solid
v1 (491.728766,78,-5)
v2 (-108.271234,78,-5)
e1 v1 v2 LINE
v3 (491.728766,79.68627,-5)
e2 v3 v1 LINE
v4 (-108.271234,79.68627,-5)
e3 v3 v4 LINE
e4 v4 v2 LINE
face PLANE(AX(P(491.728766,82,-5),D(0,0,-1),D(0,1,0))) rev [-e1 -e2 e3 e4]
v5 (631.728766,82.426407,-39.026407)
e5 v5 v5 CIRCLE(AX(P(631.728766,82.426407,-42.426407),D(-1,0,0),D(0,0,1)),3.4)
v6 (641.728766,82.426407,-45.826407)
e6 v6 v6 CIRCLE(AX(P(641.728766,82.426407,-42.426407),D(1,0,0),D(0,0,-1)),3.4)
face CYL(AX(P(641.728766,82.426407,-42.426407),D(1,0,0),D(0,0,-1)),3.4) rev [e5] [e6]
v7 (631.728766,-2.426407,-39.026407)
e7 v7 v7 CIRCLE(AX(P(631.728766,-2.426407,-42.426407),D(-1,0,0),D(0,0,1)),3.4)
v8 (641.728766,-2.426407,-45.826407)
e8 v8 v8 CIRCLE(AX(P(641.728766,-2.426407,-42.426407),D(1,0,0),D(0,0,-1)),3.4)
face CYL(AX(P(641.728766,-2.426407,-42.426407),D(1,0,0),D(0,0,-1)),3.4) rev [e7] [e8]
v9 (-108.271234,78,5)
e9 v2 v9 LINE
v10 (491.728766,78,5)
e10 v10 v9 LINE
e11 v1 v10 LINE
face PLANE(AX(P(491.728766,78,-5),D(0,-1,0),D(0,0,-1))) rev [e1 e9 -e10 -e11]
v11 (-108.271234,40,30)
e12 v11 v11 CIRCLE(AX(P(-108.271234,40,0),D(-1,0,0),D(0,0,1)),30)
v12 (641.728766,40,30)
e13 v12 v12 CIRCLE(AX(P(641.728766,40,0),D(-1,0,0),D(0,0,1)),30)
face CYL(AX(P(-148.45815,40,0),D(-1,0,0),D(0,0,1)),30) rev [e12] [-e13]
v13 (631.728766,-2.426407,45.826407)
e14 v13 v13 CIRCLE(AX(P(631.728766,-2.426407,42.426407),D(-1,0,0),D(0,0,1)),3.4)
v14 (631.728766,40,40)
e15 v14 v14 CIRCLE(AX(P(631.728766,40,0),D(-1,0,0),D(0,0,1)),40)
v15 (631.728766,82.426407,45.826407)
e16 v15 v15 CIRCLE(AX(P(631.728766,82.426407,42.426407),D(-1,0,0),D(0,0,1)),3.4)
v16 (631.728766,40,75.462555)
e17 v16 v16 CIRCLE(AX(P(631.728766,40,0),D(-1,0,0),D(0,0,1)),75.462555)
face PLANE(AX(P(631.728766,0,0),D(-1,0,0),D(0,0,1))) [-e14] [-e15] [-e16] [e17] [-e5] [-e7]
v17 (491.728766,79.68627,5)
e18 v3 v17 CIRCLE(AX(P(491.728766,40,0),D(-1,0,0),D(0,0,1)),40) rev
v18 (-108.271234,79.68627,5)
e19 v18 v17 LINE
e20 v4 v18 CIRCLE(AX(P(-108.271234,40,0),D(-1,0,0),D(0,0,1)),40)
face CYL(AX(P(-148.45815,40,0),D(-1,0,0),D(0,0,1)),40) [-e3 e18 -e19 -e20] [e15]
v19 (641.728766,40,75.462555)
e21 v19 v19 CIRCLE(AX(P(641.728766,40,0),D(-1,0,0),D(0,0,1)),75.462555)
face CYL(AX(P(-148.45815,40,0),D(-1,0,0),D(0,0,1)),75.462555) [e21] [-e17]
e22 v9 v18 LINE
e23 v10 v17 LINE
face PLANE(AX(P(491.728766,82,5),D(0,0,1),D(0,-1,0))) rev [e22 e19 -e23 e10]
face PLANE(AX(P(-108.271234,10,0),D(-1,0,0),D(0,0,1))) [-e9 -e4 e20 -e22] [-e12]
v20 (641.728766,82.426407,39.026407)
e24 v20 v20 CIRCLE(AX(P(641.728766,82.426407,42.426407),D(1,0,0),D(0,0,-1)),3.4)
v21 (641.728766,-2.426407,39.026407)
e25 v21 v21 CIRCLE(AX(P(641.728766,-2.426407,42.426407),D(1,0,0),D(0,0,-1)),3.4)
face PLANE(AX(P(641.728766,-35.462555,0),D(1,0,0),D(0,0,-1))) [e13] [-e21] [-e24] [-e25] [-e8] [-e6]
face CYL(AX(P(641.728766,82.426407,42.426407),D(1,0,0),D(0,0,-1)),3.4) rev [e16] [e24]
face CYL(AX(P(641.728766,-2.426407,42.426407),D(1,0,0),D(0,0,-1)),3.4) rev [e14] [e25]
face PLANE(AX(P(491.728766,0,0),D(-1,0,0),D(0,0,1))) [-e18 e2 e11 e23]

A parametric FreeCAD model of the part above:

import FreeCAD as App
import Part
import Sketcher

doc = App.newDocument("Part")
params = doc.addObject("Spreadsheet::Sheet", "Params")
for row, (alias, value) in enumerate([
    ("sketch1_width", "740 mm"),
    ("sketch1_width2", "10 mm"),
    ("revolution_angle", "360 deg"),
    ("sketch2_width", "4 mm"),
    ("sketch2_height", "10 mm"),
    ("pocket1_length", "600 mm"),
    ("sketch3_diameter", "6.8 mm"),
    ("hole_diameter", "6.8 mm"),
    ("hole_depth", "19.75 mm"),
], start=1):
    params.set(f"A{row}", alias)
    params.set(f"B{row}", "=" + value)
    params.setAlias(f"B{row}", alias)

body = doc.addObject("PartDesign::Body", "Body")

sketch1 = body.newObject("Sketcher::SketchObject", "Sketch")
sketch1.AttachmentSupport = (doc.getObject("XY_Plane"), [""])
sketch1.MapMode = "FlatFace"
sketch1.addGeometry(Part.LineSegment(App.Vector(-108, 10, 0), App.Vector(-108, 0, 0)), False)
sketch1.addGeometry(Part.LineSegment(App.Vector(-108, 0, 0), App.Vector(632, 0, 0)), False)
sketch1.addGeometry(Part.LineSegment(App.Vector(632, 0, 0), App.Vector(632, -35, 0)), False)
sketch1.addGeometry(Part.LineSegment(App.Vector(632, -35, 0), App.Vector(642, -35, 0)), False)
sketch1.addGeometry(Part.LineSegment(App.Vector(642, -35, 0), App.Vector(642, 10, 0)), False)
sketch1.addGeometry(Part.LineSegment(App.Vector(642, 10, 0), App.Vector(-108, 10, 0)), False)
sketch1.addGeometry(Part.LineSegment(App.Vector(-108, 40, 0), App.Vector(642, 40, 0)), True)
sketch1.addConstraint(Sketcher.Constraint("Coincident", 0, 2, 1, 1))
sketch1.addConstraint(Sketcher.Constraint("Coincident", 1, 2, 2, 1))
sketch1.addConstraint(Sketcher.Constraint("Coincident", 2, 2, 3, 1))
sketch1.addConstraint(Sketcher.Constraint("Coincident", 3, 2, 4, 1))
sketch1.addConstraint(Sketcher.Constraint("Coincident", 4, 2, 5, 1))
sketch1.addConstraint(Sketcher.Constraint("Coincident", 5, 2, 0, 1))
sketch1.addConstraint(Sketcher.Constraint("Vertical", 0))
sketch1.addConstraint(Sketcher.Constraint("Horizontal", 1))
sketch1.addConstraint(Sketcher.Constraint("Vertical", 2))
sketch1.addConstraint(Sketcher.Constraint("Horizontal", 3))
sketch1.addConstraint(Sketcher.Constraint("Vertical", 4))
sketch1.addConstraint(Sketcher.Constraint("Horizontal", 5))
sketch1.addConstraint(Sketcher.Constraint("Horizontal", 6))
sketch1.addConstraint(Sketcher.Constraint("PointOnObject", 0, 2, -1))
sketch1.addConstraint(Sketcher.Constraint("Vertical", 5, 2, 6, 1))
sketch1.addConstraint(Sketcher.Constraint("Vertical", 4, 2, 6, 2))
sketch1.addConstraint(Sketcher.Constraint("Equal", 3, 0))
sketch1.addConstraint(Sketcher.Constraint("DistanceX", 1, 1, 1, 2, 740.0))
sketch1.addConstraint(Sketcher.Constraint("DistanceX", 3, 1, 3, 2, 10.0))
sketch1.addConstraint(Sketcher.Constraint("DistanceY", -1, 1, 6, 1, 40.0))
sketch1.addConstraint(Sketcher.Constraint("DistanceY", 2, 2, 2, 1, 35.462555))
sketch1.addConstraint(Sketcher.Constraint("DistanceX", 0, 2, -1, 1, 108.271234))
sketch1.setExpression("Constraints[17]", "Params.sketch1_width")
sketch1.setExpression("Constraints[18]", "Params.sketch1_width2")
revolution = body.newObject("PartDesign::Revolution", "Revolution")
revolution.Profile = sketch1
revolution.ReferenceAxis = (sketch1, ["Axis0"])
revolution.setExpression("Angle", "Params.revolution_angle")

sketch2 = body.newObject("Sketcher::SketchObject", "Sketch001")
sketch2.AttachmentSupport = (doc.getObject("YZ_Plane"), [""])
sketch2.MapMode = "FlatFace"
sketch2.AttachmentOffset = App.Placement(App.Vector(0, 0, -108.271234), App.Rotation())
sketch2.addGeometry(Part.LineSegment(App.Vector(82, -5, 0), App.Vector(78, -5, 0)), False)
sketch2.addGeometry(Part.LineSegment(App.Vector(78, -5, 0), App.Vector(78, 5, 0)), False)
sketch2.addGeometry(Part.LineSegment(App.Vector(78, 5, 0), App.Vector(82, 5, 0)), False)
sketch2.addGeometry(Part.LineSegment(App.Vector(82, 5, 0), App.Vector(82, -5, 0)), False)
sketch2.addConstraint(Sketcher.Constraint("Coincident", 0, 2, 1, 1))
sketch2.addConstraint(Sketcher.Constraint("Coincident", 1, 2, 2, 1))
sketch2.addConstraint(Sketcher.Constraint("Coincident", 2, 2, 3, 1))
sketch2.addConstraint(Sketcher.Constraint("Coincident", 3, 2, 0, 1))
sketch2.addConstraint(Sketcher.Constraint("Horizontal", 0))
sketch2.addConstraint(Sketcher.Constraint("Vertical", 1))
sketch2.addConstraint(Sketcher.Constraint("Horizontal", 2))
sketch2.addConstraint(Sketcher.Constraint("Vertical", 3))
sketch2.addConstraint(Sketcher.Constraint("DistanceX", 0, 2, 0, 1, 4.0))
sketch2.addConstraint(Sketcher.Constraint("DistanceY", 1, 1, 1, 2, 10.0))
sketch2.addConstraint(Sketcher.Constraint("DistanceX", -1, 1, 0, 2, 78.0))
sketch2.addConstraint(Sketcher.Constraint("DistanceY", 0, 2, -1, 1, 5.0))
sketch2.setExpression("Constraints[8]", "Params.sketch2_width")
sketch2.setExpression("Constraints[9]", "Params.sketch2_height")
pocket1 = body.newObject("PartDesign::Pocket", "Pocket")
pocket1.Profile = sketch2
pocket1.setExpression("Length", "Params.pocket1_length")
pocket1.Reversed = True

sketch3 = body.newObject("Sketcher::SketchObject", "Sketch002")
sketch3.AttachmentSupport = (doc.getObject("YZ_Plane"), [""])
sketch3.MapMode = "FlatFace"
sketch3.AttachmentOffset = App.Placement(App.Vector(0, 0, 641.728766), App.Rotation())
sketch3.addGeometry(Part.Circle(App.Vector(82.4, 42.4, 0), App.Vector(0, 0, 1), 3.4), False)
sketch3.addGeometry(Part.Circle(App.Vector(82.4, -42.4, 0), App.Vector(0, 0, 1), 3.4), False)
sketch3.addGeometry(Part.Circle(App.Vector(-2.4, -42.4, 0), App.Vector(0, 0, 1), 3.4), False)
sketch3.addGeometry(Part.Circle(App.Vector(-2.4, 42.4, 0), App.Vector(0, 0, 1), 3.4), False)
sketch3.addConstraint(Sketcher.Constraint("Equal", 0, 1))
sketch3.addConstraint(Sketcher.Constraint("Equal", 1, 2))
sketch3.addConstraint(Sketcher.Constraint("Equal", 2, 3))
sketch3.addConstraint(Sketcher.Constraint("Symmetric", 0, 3, 1, 3, -1))
sketch3.addConstraint(Sketcher.Constraint("Symmetric", 2, 3, 3, 3, -1))
sketch3.addConstraint(Sketcher.Constraint("Horizontal", 1, 3, 2, 3))
sketch3.addConstraint(Sketcher.Constraint("Diameter", 0, 6.8))
sketch3.addConstraint(Sketcher.Constraint("DistanceX", -1, 1, 0, 3, 82.426407))
sketch3.addConstraint(Sketcher.Constraint("DistanceY", -1, 1, 0, 3, 42.426407))
sketch3.addConstraint(Sketcher.Constraint("DistanceX", 2, 3, -1, 1, 2.426407))
sketch3.setExpression("Constraints[6]", "Params.sketch3_diameter")
doc.recompute()
hole = body.newObject("PartDesign::Hole", "Hole")
hole.Profile = sketch3
hole.ThreadType = "None"
hole.setExpression("Diameter", "Params.hole_diameter")
hole.DepthType = "Dimension"
hole.setExpression("Depth", "Params.hole_depth")
hole.DrillPoint = "Angled"
hole.DrillPointAngle = 118

doc.recompute()
